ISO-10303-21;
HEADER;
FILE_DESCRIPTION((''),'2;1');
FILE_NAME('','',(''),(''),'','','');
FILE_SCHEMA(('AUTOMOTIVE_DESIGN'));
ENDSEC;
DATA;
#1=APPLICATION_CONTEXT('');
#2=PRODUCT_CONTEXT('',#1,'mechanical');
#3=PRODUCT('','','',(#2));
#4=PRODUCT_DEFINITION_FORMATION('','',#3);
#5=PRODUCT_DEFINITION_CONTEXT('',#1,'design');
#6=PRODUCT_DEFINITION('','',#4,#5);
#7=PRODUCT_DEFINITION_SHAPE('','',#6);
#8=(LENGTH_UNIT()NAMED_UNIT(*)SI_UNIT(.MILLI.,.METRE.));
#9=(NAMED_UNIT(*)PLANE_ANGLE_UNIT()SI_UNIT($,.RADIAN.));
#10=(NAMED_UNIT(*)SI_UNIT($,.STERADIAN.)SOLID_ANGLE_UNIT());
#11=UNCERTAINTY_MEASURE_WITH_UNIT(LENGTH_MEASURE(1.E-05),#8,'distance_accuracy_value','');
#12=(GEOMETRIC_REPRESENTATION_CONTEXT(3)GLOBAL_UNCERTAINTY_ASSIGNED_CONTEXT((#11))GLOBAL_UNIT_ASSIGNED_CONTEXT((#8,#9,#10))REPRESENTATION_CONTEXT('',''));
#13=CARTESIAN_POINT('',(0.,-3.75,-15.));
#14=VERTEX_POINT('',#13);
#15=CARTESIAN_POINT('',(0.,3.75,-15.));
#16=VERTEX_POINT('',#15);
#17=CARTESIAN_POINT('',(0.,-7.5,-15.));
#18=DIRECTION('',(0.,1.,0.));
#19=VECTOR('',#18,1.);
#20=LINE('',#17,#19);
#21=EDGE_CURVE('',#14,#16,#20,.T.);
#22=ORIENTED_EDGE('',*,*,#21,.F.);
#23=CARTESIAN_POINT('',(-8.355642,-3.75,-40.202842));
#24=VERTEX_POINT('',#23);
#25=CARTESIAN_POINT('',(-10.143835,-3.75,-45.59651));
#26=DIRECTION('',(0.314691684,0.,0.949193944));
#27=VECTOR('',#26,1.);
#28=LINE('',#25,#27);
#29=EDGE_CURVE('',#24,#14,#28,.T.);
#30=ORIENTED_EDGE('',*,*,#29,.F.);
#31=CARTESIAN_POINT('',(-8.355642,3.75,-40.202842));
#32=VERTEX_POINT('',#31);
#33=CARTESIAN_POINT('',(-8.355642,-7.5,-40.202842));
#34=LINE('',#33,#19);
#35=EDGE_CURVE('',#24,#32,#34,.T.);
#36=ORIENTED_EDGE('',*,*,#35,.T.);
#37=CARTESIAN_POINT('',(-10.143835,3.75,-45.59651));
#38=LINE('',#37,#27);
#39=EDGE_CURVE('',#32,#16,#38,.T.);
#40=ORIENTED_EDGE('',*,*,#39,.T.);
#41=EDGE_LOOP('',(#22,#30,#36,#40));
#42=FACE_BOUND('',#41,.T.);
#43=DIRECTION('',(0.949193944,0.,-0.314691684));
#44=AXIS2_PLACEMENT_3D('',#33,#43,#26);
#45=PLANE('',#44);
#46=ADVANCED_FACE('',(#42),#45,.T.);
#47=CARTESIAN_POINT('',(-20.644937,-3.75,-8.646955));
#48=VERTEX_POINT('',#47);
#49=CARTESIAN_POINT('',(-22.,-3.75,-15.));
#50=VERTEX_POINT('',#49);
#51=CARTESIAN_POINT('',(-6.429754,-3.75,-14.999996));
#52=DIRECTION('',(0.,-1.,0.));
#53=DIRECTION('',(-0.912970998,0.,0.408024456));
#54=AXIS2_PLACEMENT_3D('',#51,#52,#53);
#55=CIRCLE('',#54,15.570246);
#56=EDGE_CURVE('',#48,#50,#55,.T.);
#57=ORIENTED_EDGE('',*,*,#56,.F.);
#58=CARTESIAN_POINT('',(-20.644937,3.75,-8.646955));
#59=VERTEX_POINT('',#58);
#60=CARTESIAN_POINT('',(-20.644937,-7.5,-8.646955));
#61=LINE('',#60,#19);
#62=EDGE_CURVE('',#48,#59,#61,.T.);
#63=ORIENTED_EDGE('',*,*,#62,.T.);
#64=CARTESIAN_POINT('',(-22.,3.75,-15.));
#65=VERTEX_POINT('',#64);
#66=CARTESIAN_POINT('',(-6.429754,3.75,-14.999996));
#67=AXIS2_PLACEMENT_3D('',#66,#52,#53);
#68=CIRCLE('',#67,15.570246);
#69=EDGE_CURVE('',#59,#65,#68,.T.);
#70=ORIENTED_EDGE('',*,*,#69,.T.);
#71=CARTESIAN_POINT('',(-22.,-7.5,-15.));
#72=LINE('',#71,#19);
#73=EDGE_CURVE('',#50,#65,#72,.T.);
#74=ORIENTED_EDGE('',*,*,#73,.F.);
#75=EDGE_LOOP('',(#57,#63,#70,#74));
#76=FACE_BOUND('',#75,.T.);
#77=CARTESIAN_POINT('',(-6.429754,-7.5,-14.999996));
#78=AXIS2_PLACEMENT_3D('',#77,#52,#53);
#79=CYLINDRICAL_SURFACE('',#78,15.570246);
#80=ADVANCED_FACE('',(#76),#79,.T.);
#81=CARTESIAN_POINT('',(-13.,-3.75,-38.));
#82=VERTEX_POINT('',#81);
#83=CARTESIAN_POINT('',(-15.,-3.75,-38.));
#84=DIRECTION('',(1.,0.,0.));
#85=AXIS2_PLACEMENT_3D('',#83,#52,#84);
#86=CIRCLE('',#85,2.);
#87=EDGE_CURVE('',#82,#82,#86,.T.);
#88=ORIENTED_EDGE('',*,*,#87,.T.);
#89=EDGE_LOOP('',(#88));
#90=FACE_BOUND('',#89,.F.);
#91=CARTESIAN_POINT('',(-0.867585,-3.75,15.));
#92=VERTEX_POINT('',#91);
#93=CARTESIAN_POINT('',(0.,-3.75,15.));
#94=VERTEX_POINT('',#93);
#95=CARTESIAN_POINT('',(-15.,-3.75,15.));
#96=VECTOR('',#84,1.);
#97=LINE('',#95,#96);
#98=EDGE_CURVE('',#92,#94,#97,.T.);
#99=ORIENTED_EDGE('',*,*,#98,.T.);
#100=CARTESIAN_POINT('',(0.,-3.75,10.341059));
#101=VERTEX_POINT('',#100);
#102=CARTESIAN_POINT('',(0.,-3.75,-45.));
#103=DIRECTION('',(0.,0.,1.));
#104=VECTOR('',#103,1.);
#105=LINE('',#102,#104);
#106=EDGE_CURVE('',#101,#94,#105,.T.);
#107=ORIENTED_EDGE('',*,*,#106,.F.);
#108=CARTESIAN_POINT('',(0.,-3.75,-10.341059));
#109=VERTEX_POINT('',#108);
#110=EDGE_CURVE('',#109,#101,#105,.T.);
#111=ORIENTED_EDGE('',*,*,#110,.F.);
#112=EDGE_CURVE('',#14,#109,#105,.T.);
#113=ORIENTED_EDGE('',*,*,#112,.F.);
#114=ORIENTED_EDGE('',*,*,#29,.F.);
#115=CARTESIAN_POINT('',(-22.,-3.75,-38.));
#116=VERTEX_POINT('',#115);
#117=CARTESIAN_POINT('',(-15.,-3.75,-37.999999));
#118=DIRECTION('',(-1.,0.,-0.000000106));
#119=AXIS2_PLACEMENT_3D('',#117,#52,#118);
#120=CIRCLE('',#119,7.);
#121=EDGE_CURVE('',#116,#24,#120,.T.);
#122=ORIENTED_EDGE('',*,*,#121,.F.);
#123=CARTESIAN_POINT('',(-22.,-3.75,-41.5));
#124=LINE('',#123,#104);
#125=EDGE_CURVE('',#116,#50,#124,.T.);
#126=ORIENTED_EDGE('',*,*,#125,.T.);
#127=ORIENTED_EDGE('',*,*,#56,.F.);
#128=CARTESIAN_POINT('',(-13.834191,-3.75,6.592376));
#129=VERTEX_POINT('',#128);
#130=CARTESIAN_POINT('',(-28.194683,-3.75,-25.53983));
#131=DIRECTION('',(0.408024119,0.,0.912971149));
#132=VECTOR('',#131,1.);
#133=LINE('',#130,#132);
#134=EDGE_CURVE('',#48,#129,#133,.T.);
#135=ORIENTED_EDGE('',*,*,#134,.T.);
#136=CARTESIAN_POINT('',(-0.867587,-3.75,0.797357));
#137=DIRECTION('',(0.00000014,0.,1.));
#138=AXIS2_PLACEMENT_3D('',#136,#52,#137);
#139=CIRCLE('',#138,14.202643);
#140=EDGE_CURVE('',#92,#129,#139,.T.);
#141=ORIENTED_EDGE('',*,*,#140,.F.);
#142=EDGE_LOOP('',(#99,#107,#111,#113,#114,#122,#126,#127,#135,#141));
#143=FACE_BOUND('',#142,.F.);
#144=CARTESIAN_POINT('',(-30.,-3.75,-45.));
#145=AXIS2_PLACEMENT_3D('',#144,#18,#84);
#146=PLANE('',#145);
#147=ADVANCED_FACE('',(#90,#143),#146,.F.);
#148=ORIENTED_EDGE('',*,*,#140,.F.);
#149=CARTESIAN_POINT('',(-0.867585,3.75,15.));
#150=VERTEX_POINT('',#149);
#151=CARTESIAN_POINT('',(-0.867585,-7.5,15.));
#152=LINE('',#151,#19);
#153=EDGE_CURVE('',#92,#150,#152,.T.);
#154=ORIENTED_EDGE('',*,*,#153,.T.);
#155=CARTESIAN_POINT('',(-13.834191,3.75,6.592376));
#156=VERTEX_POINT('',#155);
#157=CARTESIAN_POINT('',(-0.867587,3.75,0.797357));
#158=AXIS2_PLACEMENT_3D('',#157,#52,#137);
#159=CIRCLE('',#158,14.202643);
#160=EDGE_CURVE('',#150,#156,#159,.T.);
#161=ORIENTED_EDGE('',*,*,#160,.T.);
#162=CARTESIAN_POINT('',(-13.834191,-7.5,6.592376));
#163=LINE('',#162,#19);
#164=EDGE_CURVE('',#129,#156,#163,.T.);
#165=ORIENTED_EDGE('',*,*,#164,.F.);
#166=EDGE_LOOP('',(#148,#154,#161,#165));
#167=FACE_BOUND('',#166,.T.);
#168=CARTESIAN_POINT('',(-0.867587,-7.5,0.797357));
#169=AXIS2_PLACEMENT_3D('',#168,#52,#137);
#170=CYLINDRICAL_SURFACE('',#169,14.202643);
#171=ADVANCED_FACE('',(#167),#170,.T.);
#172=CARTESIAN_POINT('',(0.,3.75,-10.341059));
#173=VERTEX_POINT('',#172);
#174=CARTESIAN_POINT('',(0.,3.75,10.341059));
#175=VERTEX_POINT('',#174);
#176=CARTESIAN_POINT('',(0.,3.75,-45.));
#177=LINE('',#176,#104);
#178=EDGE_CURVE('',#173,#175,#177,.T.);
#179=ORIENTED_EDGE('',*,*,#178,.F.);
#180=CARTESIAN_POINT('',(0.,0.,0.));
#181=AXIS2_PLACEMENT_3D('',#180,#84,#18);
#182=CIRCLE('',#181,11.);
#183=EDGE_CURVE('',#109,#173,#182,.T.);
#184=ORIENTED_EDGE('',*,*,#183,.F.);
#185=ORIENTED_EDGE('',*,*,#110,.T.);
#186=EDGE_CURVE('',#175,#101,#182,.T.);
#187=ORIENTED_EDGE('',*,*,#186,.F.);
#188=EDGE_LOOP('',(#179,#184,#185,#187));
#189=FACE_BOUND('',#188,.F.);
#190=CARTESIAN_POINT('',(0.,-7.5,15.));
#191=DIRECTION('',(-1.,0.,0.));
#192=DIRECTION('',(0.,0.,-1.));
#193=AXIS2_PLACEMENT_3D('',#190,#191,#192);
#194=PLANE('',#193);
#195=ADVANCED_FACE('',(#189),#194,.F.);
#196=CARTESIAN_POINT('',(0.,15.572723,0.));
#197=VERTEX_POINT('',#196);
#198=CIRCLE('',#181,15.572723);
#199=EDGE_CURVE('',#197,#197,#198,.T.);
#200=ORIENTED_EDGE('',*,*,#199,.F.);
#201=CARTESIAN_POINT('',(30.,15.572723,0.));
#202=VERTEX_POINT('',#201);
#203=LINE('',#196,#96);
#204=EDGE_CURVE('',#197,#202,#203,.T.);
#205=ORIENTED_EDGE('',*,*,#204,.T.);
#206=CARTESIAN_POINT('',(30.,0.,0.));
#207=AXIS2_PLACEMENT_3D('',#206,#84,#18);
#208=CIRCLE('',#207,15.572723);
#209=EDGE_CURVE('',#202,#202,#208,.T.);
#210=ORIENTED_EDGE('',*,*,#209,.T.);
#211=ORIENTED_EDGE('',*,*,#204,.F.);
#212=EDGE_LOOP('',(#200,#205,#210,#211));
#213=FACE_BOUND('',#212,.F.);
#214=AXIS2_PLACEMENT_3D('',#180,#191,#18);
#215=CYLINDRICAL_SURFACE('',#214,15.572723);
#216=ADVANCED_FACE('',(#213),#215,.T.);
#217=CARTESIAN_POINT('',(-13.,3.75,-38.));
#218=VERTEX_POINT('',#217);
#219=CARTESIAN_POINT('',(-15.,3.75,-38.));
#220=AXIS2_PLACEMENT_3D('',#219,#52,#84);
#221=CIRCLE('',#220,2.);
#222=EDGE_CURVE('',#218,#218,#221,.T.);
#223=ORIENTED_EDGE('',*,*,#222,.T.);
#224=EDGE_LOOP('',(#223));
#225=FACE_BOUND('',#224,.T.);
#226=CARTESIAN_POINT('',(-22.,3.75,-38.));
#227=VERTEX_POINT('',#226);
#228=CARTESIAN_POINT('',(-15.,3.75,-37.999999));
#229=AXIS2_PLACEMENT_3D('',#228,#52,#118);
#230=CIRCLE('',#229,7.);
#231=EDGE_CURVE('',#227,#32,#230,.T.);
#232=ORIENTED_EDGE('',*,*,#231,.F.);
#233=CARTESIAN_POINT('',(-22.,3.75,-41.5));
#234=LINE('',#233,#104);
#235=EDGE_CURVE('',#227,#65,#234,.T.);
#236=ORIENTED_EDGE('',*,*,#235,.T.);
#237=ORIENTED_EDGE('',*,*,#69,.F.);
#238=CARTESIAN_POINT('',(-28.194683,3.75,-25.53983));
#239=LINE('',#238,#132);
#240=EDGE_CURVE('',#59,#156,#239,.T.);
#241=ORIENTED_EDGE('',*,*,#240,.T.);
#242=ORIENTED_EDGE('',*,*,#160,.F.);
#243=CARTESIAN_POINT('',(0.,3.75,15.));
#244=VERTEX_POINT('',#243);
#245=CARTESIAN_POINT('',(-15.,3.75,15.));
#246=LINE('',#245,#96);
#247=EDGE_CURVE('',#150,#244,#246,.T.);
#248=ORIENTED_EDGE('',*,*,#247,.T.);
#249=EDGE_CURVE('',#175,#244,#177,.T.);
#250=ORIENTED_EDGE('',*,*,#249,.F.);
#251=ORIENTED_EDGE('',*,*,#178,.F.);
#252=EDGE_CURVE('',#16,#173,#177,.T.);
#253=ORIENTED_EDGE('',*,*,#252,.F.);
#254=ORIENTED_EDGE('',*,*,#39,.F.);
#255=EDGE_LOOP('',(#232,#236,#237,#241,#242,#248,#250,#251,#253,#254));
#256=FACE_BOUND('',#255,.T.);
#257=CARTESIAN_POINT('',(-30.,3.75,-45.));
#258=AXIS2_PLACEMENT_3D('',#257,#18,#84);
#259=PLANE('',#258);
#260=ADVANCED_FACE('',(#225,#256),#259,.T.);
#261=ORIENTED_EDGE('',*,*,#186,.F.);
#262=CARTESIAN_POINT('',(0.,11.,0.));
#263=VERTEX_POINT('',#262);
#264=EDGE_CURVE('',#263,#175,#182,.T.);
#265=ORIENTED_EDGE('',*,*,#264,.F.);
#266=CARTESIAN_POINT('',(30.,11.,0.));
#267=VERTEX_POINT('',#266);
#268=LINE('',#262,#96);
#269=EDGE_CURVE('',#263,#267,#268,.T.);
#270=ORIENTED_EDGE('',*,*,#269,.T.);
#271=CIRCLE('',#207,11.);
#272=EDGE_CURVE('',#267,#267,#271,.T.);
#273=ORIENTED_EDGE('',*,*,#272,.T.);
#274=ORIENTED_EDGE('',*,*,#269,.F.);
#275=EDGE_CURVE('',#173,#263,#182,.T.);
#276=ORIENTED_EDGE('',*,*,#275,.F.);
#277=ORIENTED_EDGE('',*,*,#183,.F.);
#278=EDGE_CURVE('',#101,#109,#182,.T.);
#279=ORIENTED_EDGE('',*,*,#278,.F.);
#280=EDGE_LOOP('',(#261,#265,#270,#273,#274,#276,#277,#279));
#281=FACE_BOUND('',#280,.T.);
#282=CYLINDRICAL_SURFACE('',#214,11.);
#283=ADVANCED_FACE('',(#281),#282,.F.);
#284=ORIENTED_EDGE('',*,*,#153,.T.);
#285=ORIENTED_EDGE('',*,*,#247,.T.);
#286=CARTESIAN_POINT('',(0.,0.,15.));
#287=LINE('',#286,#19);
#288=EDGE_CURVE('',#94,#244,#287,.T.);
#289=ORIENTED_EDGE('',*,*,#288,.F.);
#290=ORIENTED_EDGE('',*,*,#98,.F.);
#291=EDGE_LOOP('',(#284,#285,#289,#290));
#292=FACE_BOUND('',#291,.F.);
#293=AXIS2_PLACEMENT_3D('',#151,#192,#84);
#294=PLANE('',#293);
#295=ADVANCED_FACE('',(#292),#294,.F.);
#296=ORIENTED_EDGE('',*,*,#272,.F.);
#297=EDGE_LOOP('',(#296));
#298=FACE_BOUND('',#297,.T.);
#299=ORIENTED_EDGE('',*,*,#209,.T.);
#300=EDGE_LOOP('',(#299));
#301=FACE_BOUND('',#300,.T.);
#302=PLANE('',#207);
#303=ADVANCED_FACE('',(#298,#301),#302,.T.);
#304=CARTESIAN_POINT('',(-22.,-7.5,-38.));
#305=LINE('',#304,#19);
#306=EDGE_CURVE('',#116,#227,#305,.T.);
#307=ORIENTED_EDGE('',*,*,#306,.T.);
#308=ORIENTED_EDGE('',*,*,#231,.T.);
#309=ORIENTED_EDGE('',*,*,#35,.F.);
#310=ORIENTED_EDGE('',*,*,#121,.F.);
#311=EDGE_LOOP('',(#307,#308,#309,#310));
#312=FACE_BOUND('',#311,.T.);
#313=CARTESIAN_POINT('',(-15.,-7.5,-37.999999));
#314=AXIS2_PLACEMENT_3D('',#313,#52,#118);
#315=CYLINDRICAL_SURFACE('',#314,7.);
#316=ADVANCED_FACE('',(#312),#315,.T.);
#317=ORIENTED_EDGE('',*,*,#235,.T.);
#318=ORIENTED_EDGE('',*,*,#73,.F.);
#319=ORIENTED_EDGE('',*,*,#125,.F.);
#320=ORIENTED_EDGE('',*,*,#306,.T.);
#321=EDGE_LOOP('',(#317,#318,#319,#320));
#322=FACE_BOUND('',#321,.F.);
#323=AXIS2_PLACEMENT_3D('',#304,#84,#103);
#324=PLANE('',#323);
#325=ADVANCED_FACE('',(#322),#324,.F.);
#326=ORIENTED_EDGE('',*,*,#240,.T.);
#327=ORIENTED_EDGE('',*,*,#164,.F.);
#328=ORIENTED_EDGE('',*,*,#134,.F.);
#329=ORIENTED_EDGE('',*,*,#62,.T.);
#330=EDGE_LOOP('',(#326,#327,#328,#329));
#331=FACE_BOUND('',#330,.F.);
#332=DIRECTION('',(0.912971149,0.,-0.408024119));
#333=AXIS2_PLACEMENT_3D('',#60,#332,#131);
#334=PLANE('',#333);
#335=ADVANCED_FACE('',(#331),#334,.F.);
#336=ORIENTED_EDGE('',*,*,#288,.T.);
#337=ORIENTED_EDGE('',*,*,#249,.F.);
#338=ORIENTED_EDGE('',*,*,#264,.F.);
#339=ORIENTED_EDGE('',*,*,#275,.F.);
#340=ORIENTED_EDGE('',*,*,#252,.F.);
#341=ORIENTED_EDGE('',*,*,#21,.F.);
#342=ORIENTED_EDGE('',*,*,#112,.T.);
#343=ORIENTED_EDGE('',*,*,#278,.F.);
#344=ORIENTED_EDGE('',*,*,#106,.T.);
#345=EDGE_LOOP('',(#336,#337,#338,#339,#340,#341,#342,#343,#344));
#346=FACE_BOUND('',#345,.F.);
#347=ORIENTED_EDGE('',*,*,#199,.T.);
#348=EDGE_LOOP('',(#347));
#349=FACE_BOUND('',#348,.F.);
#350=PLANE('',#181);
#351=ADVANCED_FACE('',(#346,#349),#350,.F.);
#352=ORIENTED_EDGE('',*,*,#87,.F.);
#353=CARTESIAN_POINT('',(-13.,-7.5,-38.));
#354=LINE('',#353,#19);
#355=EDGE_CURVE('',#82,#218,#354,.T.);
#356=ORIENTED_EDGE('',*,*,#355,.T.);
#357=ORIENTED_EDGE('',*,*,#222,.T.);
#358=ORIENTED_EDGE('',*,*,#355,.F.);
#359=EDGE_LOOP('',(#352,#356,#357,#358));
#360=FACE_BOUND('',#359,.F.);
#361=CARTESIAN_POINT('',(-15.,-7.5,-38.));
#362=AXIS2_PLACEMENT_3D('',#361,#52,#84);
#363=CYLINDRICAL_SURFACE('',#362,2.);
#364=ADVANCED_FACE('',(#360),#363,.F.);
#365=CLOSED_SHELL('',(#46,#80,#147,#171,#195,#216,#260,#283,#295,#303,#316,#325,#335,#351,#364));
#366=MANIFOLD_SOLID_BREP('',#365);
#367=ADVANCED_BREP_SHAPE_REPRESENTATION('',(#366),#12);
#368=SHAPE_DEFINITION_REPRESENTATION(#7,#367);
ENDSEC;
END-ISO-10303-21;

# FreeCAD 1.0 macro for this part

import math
import FreeCAD as App
import Part
import Sketcher
from FreeCAD import Vector


def add_polygon(sketch, points):
    """Adds a closed chain of lines whose ends are joined by coincident constraints."""
    first, n = sketch.GeometryCount, len(points)
    for a, b in zip(points, points[1:] + points[:1]):
        sketch.addGeometry(Part.LineSegment(App.Vector(*a, 0), App.Vector(*b, 0)), False)
    for i in range(n):
        sketch.addConstraint(Sketcher.Constraint("Coincident", first + i, 2, first + (i + 1) % n, 1))

doc = App.newDocument("Part")
body = doc.addObject("PartDesign::Body", "Body")

# Sketch on XY plane
sketch1 = body.newObject("Sketcher::SketchObject", "Sketch")
sketch1.AttachmentSupport = (doc.getObject("XY_Plane"), [""])
sketch1.MapMode = "FlatFace"
sketch1.AttachmentOffset = App.Placement(Vector(0, 0, -15), App.Rotation())
add_polygon(sketch1, [(-30, 3.75), (-30, -3.75), (0, -3.75), (0, 3.75)])  # lines 0-3
sketch1.addConstraint([
    Sketcher.Constraint("Vertical", 0),
    Sketcher.Constraint("Horizontal", 1),
    Sketcher.Constraint("Vertical", 2),
    Sketcher.Constraint("Horizontal", 3),
    Sketcher.Constraint("Symmetric", 1, 2, 2, 2, -1, 1),
    Sketcher.Constraint("DistanceX", 1, 1, 1, 2, 30.0),
    Sketcher.Constraint("DistanceY", 0, 2, 0, 1, 7.5),
])
pad1 = body.newObject("PartDesign::Pad", "Pad")
pad1.Profile = sketch1
pad1.Length = 60
body2 = doc.addObject("PartDesign::Body", "Body001")
doc.recompute()

body.Placement = App.Placement(Vector(0, 0, -30), App.Rotation(Vector(0, 0, 1), 0))
boolean = body2.newObject("PartDesign::Boolean", "Boolean")
boolean.Type = "Fuse"
boolean.addObjects([body])
body3 = doc.addObject("PartDesign::Body", "Body002")

# Sketch on XZ plane
sketch2 = body3.newObject("Sketcher::SketchObject", "Sketch001")
sketch2.AttachmentSupport = (doc.getObject("XZ_Plane002"), [""])
sketch2.MapMode = "FlatFace"
sketch2.addGeometry([
    Part.LineSegment(Vector(-22, -15, 0), Vector(-22, -38, 0)),  # 0
    Part.ArcOfCircle(Part.Circle(Vector(-15, -37.999999, 0), Vector(0, 0, 1), 7), math.radians(-179.999994), math.radians(-18.342209)),  # 1
    Part.LineSegment(Vector(-8.355642, -40.202842, 0), Vector(0, -15, 0)),  # 2
    Part.LineSegment(Vector(0, -15, 0), Vector(0, 15, 0)),  # 3
    Part.LineSegment(Vector(0, 15, 0), Vector(-0.867585, 15, 0)),  # 4
    Part.ArcOfCircle(Part.Circle(Vector(-0.867587, 0.797357, 0), Vector(0, 0, 1), 14.202643), math.radians(89.999992), math.radians(155.919236)),  # 5
    Part.LineSegment(Vector(-13.834191, 6.592376, 0), Vector(-20.644937, -8.646955, 0)),  # 6
    Part.ArcOfCircle(Part.Circle(Vector(-6.429754, -14.999996, 0), Vector(0, 0, 1), 15.570246), math.radians(155.919205), math.radians(180.000014)),  # 7
    Part.Circle(Vector(-15, -38, 0), Vector(0, 0, 1), 2),  # 8
], False)
sketch2.addConstraint([
    Sketcher.Constraint("Coincident", 0, 2, 1, 1),
    Sketcher.Constraint("Coincident", 1, 2, 2, 1),
    Sketcher.Constraint("Coincident", 2, 2, 3, 1),
    Sketcher.Constraint("Coincident", 3, 2, 4, 1),
    Sketcher.Constraint("Coincident", 4, 2, 5, 1),
    Sketcher.Constraint("Coincident", 5, 2, 6, 1),
    Sketcher.Constraint("Coincident", 6, 2, 7, 1),
    Sketcher.Constraint("Coincident", 7, 2, 0, 1),
    Sketcher.Constraint("Vertical", 0),
    Sketcher.Constraint("Vertical", 3),
    Sketcher.Constraint("Horizontal", 4),
    Sketcher.Constraint("Coincident", 8, 3, 1, 3),
    Sketcher.Constraint("PointOnObject", 2, 2, -2),
    Sketcher.Constraint("Diameter", 8, 4.0),
    Sketcher.Constraint("Radius", 1, 7.0),
    Sketcher.Constraint("DistanceY", 0, 2, 0, 1, 23.0),
    Sketcher.Constraint("DistanceY", 3, 1, 3, 2, 30.0),
    Sketcher.Constraint("DistanceX", 1, 3, -1, 1, 15.0),
    Sketcher.Constraint("DistanceY", 1, 3, -1, 1, 37.999999),
    Sketcher.Constraint("DistanceY", 0, 2, -1, 1, 38.0),
    Sketcher.Constraint("DistanceY", 2, 2, -1, 1, 15.0),
    Sketcher.Constraint("Radius", 5, 14.202643),
    Sketcher.Constraint("Radius", 7, 15.570246),
    Sketcher.Constraint("DistanceY", 1, 2, 5, 3, 41.000199),
    Sketcher.Constraint("Distance", 6, 16.692018),
    Sketcher.Constraint("DistanceX", 4, 2, 4, 1, 0.867585),
    Sketcher.Constraint("DistanceX", 5, 2, -1, 1, 13.834191),
    Sketcher.Constraint("DistanceY", 5, 3, 5, 2, 5.795019),
    Sketcher.Constraint("DistanceY", 7, 3, 6, 2, 6.353041),
])
pad2 = body3.newObject("PartDesign::Pad", "Pad001")
pad2.Profile = sketch2
pad2.Length = 15
pad2.Reversed = True
body4 = doc.addObject("PartDesign::Body", "Body003")
doc.recompute()

body3.Placement = App.Placement(Vector(0, -7.5, 0), App.Rotation(Vector(0, 0, 1), 0))
boolean2 = body4.newObject("PartDesign::Boolean", "Boolean001")
boolean2.Type = "Fuse"
boolean2.addObjects([body3])
doc.recompute()

boolean3 = body4.newObject("PartDesign::Boolean", "Boolean002")
boolean3.Type = "Common"
boolean3.addObjects([body2])
body5 = doc.addObject("PartDesign::Body", "Body004")

# Sketch on YZ plane
sketch3 = body5.newObject("Sketcher::SketchObject", "Sketch002")
sketch3.AttachmentSupport = (doc.getObject("YZ_Plane004"), [""])
sketch3.MapMode = "FlatFace"
sketch3.addGeometry([
    Part.Circle(Vector(0, 0, 0), Vector(0, 0, 1), 15.572723),
    Part.Circle(Vector(0, 0, 0), Vector(0, 0, 1), 11),
], False)
sketch3.addConstraint([
    Sketcher.Constraint("Coincident", 0, 3, -1, 1),
    Sketcher.Constraint("Coincident", 1, 3, -1, 1),
    Sketcher.Constraint("Diameter", 1, 22.0),
    Sketcher.Constraint("Diameter", 0, 31.145446),
])
pad3 = body5.newObject("PartDesign::Pad", "Pad002")
pad3.Profile = sketch3
pad3.Length = 30
doc.recompute()

boolean4 = body5.newObject("PartDesign::Boolean", "Boolean003")
boolean4.Type = "Fuse"
boolean4.addObjects([body4])

doc.recompute()
